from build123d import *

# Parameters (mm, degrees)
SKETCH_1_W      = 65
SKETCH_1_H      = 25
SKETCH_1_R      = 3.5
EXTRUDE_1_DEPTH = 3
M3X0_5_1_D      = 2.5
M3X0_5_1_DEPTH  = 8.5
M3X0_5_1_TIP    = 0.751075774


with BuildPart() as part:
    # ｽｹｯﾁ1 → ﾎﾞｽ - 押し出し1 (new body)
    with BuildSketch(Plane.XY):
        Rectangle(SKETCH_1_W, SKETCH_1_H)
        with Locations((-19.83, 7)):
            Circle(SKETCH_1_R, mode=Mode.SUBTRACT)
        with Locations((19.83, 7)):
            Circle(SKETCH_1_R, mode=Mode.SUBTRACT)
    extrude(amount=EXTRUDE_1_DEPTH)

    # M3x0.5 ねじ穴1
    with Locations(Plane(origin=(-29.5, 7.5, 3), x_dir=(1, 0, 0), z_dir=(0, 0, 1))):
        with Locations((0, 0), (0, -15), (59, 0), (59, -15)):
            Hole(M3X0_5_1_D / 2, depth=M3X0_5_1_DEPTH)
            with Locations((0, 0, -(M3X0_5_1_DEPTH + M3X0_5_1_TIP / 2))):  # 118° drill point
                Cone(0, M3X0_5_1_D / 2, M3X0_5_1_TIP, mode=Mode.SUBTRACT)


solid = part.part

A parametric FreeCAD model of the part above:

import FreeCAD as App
import Part
import Sketcher
from FreeCAD import Vector
Q = App.Units.Quantity

doc = App.newDocument("Part")
body = doc.addObject("PartDesign::Body", "Body")

# Sketch on XY plane
sketch1 = body.newObject("Sketcher::SketchObject", "Sketch")
sketch1.AttachmentSupport = (doc.getObject("XY_Plane"), [""])
sketch1.MapMode = "FlatFace"
sketch1.addGeometry(Part.LineSegment(Vector(-32.5, 12.5, 0), Vector(-32.5, -12.5, 0)), False)
sketch1.addGeometry(Part.LineSegment(Vector(-32.5, -12.5, 0), Vector(32.5, -12.5, 0)), False)
sketch1.addGeometry(Part.LineSegment(Vector(32.5, -12.5, 0), Vector(32.5, 12.5, 0)), False)
sketch1.addGeometry(Part.LineSegment(Vector(32.5, 12.5, 0), Vector(-32.5, 12.5, 0)), False)
sketch1.addGeometry(Part.Circle(Vector(-19.8, 7, 0), Vector(0, 0, 1), 3.5), False)
sketch1.addGeometry(Part.Circle(Vector(19.8, 7, 0), Vector(0, 0, 1), 3.5), False)
sketch1.addConstraint(Sketcher.Constraint("Coincident", 0, 2, 1, 1))
sketch1.addConstraint(Sketcher.Constraint("Coincident", 1, 2, 2, 1))
sketch1.addConstraint(Sketcher.Constraint("Coincident", 2, 2, 3, 1))
sketch1.addConstraint(Sketcher.Constraint("Coincident", 3, 2, 0, 1))
sketch1.addConstraint(Sketcher.Constraint("Vertical", 0))
sketch1.addConstraint(Sketcher.Constraint("Horizontal", 1))
sketch1.addConstraint(Sketcher.Constraint("Vertical", 2))
sketch1.addConstraint(Sketcher.Constraint("Horizontal", 3))
sketch1.addConstraint(Sketcher.Constraint("Equal", 4, 5))
sketch1.addConstraint(Sketcher.Constraint("Symmetric", 0, 2, 2, 2, -1, 1))
sketch1.addConstraint(Sketcher.Constraint("Symmetric", 4, 3, 5, 3, -2))
sketch1.addConstraint(Sketcher.Constraint("Diameter", 4, Q("7 mm")))
sketch1.addConstraint(Sketcher.Constraint("DistanceX", 1, 1, 1, 2, Q("65 mm")))
sketch1.addConstraint(Sketcher.Constraint("DistanceY", 0, 2, 0, 1, Q("25 mm")))
sketch1.addConstraint(Sketcher.Constraint("DistanceY", -1, 1, 4, 3, Q("7 mm")))
sketch1.addConstraint(Sketcher.Constraint("DistanceX", 4, 3, -1, 1, Q("19.83 mm")))
pad1 = body.newObject("PartDesign::Pad", "Pad")
pad1.Profile = sketch1
pad1.Length = 3

# Sketch on XY plane
sketch2 = body.newObject("Sketcher::SketchObject", "Sketch001")
sketch2.AttachmentSupport = (doc.getObject("XY_Plane"), [""])
sketch2.MapMode = "FlatFace"
sketch2.AttachmentOffset = App.Placement(Vector(0, 0, 3), App.Rotation())
sketch2.addGeometry(Part.Circle(Vector(-29.5, 7.5, 0), Vector(0, 0, 1), 1.2), False)
sketch2.addGeometry(Part.Circle(Vector(-29.5, -7.5, 0), Vector(0, 0, 1), 1.2), False)
sketch2.addGeometry(Part.Circle(Vector(29.5, 7.5, 0), Vector(0, 0, 1), 1.2), False)
sketch2.addGeometry(Part.Circle(Vector(29.5, -7.5, 0), Vector(0, 0, 1), 1.2), False)
sketch2.addConstraint(Sketcher.Constraint("Equal", 0, 1))
sketch2.addConstraint(Sketcher.Constraint("Equal", 1, 2))
sketch2.addConstraint(Sketcher.Constraint("Equal", 2, 3))
sketch2.addConstraint(Sketcher.Constraint("Symmetric", 1, 3, 2, 3, -1, 1))
sketch2.addConstraint(Sketcher.Constraint("Symmetric", 0, 3, 3, 3, -1, 1))
sketch2.addConstraint(Sketcher.Constraint("Symmetric", 0, 3, 2, 3, -2))
sketch2.addConstraint(Sketcher.Constraint("Diameter", 0, Q("2.5 mm")))
sketch2.addConstraint(Sketcher.Constraint("DistanceY", 1, 3, 0, 3, Q("15 mm")))
sketch2.addConstraint(Sketcher.Constraint("DistanceX", 0, 3, 2, 3, Q("59 mm")))
doc.recompute()
hole = body.newObject("PartDesign::Hole", "Hole")
hole.Profile = sketch2
hole.ThreadType = "None"
hole.Diameter = 2.5
hole.DepthType = "Dimension"
hole.Depth = 8.5
hole.DrillPoint = "Angled"
hole.DrillPointAngle = 118

doc.recompute()
